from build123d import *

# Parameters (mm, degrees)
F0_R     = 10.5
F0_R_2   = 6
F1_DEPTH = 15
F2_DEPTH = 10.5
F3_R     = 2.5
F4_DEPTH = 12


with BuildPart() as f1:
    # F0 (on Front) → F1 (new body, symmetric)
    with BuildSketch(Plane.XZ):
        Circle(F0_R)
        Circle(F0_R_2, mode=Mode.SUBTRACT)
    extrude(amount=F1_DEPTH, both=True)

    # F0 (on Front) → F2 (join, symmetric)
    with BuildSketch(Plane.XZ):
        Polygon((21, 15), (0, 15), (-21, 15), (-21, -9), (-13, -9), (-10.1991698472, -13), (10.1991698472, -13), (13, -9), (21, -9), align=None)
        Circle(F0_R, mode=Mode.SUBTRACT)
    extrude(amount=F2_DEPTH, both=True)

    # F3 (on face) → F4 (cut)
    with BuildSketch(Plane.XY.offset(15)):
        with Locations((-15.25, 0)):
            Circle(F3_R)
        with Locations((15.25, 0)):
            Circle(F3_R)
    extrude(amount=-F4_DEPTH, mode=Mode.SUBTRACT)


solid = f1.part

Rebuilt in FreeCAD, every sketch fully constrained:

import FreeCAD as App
import Part
import Sketcher
Q = App.Units.Quantity


def add_polygon(sketch, points):
    """Adds a closed chain of lines whose ends are joined by coincident constraints."""
    first, n = sketch.GeometryCount, len(points)
    for a, b in zip(points, points[1:] + points[:1]):
        sketch.addGeometry(Part.LineSegment(App.Vector(*a, 0), App.Vector(*b, 0)), False)
    for i in range(n):
        sketch.addConstraint(Sketcher.Constraint("Coincident", first + i, 2, first + (i + 1) % n, 1))

doc = App.newDocument("Part")
params = doc.addObject("Spreadsheet::Sheet", "Params")
for row, (alias, value) in enumerate([
    ("sketch1_diameter", "21 mm"),
    ("sketch1_diameter2", "12 mm"),
    ("pad1_length", "30 mm"),
    ("sketch2_diameter", "21 mm"),
    ("sketch2_width", "42 mm"),
    ("sketch2_width2", "8 mm"),
    ("sketch2_height", "24 mm"),
    ("pad2_length", "21 mm"),
    ("sketch3_diameter", "5 mm"),
    ("pocket1_length", "12 mm"),
], start=1):
    params.set(f"A{row}", alias)
    params.set(f"B{row}", "=" + value)
    params.setAlias(f"B{row}", alias)

body = doc.addObject("PartDesign::Body", "Body")

sketch1 = body.newObject("Sketcher::SketchObject", "Sketch")
sketch1.AttachmentSupport = (doc.getObject("XZ_Plane"), [""])
sketch1.MapMode = "FlatFace"
sketch1.addGeometry([
    Part.Circle(App.Vector(0, 0, 0), App.Vector(0, 0, 1), 10),
    Part.Circle(App.Vector(0, 0, 0), App.Vector(0, 0, 1), 6),
], False)
sketch1.addConstraint([
    Sketcher.Constraint("Coincident", 0, 3, -1, 1),
    Sketcher.Constraint("Coincident", 1, 3, -1, 1),
    Sketcher.Constraint("Diameter", 0, 21.0),
    Sketcher.Constraint("Diameter", 1, 12.0),
])
sketch1.setExpression("Constraints[2]", "Params.sketch1_diameter")
sketch1.setExpression("Constraints[3]", "Params.sketch1_diameter2")
pad1 = body.newObject("PartDesign::Pad", "Pad")
pad1.Profile = sketch1
pad1.setExpression("Length", "Params.pad1_length")
pad1.Midplane = True

sketch2 = body.newObject("Sketcher::SketchObject", "Sketch001")
sketch2.AttachmentSupport = (doc.getObject("XZ_Plane"), [""])
sketch2.MapMode = "FlatFace"
add_polygon(sketch2, [(21, 15), (-21, 15), (-21, -9), (-13, -9), (-10.2, -13), (10.2, -13), (13, -9), (21, -9)])
sketch2.addGeometry(Part.Circle(App.Vector(0, 0, 0), App.Vector(0, 0, 1), 10.5), False)
sketch2.addConstraint([
    Sketcher.Constraint("Horizontal", 0),
    Sketcher.Constraint("Vertical", 1),
    Sketcher.Constraint("Horizontal", 2),
    Sketcher.Constraint("Horizontal", 4),
    Sketcher.Constraint("Horizontal", 6),
    Sketcher.Constraint("Vertical", 7),
    Sketcher.Constraint("Coincident", 8, 3, -1, 1),
    Sketcher.Constraint("Symmetric", 2, 2, 5, 2, -2),
    Sketcher.Constraint("Equal", 2, 6),
    Sketcher.Constraint("Equal", 3, 5),
    Sketcher.Constraint("Diameter", 8, 21.0),
    Sketcher.Constraint("DistanceX", 0, 2, 0, 1, 42.0),
    Sketcher.Constraint("DistanceX", 2, 1, 2, 2, 8.0),
    Sketcher.Constraint("DistanceY", 1, 2, 1, 1, 24.0),
    Sketcher.Constraint("Angle", 3, Q("-55 deg")),
    Sketcher.Constraint("DistanceY", -1, 1, 0, 2, 15.0),
    Sketcher.Constraint("DistanceY", 3, 2, -1, 1, 13.0),
])
sketch2.setExpression("Constraints[18]", "Params.sketch2_diameter")
sketch2.setExpression("Constraints[19]", "Params.sketch2_width")
sketch2.setExpression("Constraints[20]", "Params.sketch2_width2")
sketch2.setExpression("Constraints[21]", "Params.sketch2_height")
pad2 = body.newObject("PartDesign::Pad", "Pad001")
pad2.Profile = sketch2
pad2.setExpression("Length", "Params.pad2_length")
pad2.Midplane = True

sketch3 = body.newObject("Sketcher::SketchObject", "Sketch002")
sketch3.AttachmentSupport = (doc.getObject("XY_Plane"), [""])
sketch3.MapMode = "FlatFace"
sketch3.AttachmentOffset = App.Placement(App.Vector(0, 0, 15), App.Rotation())
sketch3.addGeometry([
    Part.Circle(App.Vector(-15.2, 0, 0), App.Vector(0, 0, 1), 2.5),
    Part.Circle(App.Vector(15.2, 0, 0), App.Vector(0, 0, 1), 2.5),
], False)
sketch3.addConstraint([
    Sketcher.Constraint("Equal", 0, 1),
    Sketcher.Constraint("Symmetric", 0, 3, 1, 3, -1, 1),
    Sketcher.Constraint("PointOnObject", 0, 3, -1),
    Sketcher.Constraint("Diameter", 0, 5.0),
    Sketcher.Constraint("DistanceX", 0, 3, 1, 3, 30.5),
])
sketch3.setExpression("Constraints[3]", "Params.sketch3_diameter")
pocket1 = body.newObject("PartDesign::Pocket", "Pocket")
pocket1.Profile = sketch3
pocket1.setExpression("Length", "Params.pocket1_length")

doc.recompute()
